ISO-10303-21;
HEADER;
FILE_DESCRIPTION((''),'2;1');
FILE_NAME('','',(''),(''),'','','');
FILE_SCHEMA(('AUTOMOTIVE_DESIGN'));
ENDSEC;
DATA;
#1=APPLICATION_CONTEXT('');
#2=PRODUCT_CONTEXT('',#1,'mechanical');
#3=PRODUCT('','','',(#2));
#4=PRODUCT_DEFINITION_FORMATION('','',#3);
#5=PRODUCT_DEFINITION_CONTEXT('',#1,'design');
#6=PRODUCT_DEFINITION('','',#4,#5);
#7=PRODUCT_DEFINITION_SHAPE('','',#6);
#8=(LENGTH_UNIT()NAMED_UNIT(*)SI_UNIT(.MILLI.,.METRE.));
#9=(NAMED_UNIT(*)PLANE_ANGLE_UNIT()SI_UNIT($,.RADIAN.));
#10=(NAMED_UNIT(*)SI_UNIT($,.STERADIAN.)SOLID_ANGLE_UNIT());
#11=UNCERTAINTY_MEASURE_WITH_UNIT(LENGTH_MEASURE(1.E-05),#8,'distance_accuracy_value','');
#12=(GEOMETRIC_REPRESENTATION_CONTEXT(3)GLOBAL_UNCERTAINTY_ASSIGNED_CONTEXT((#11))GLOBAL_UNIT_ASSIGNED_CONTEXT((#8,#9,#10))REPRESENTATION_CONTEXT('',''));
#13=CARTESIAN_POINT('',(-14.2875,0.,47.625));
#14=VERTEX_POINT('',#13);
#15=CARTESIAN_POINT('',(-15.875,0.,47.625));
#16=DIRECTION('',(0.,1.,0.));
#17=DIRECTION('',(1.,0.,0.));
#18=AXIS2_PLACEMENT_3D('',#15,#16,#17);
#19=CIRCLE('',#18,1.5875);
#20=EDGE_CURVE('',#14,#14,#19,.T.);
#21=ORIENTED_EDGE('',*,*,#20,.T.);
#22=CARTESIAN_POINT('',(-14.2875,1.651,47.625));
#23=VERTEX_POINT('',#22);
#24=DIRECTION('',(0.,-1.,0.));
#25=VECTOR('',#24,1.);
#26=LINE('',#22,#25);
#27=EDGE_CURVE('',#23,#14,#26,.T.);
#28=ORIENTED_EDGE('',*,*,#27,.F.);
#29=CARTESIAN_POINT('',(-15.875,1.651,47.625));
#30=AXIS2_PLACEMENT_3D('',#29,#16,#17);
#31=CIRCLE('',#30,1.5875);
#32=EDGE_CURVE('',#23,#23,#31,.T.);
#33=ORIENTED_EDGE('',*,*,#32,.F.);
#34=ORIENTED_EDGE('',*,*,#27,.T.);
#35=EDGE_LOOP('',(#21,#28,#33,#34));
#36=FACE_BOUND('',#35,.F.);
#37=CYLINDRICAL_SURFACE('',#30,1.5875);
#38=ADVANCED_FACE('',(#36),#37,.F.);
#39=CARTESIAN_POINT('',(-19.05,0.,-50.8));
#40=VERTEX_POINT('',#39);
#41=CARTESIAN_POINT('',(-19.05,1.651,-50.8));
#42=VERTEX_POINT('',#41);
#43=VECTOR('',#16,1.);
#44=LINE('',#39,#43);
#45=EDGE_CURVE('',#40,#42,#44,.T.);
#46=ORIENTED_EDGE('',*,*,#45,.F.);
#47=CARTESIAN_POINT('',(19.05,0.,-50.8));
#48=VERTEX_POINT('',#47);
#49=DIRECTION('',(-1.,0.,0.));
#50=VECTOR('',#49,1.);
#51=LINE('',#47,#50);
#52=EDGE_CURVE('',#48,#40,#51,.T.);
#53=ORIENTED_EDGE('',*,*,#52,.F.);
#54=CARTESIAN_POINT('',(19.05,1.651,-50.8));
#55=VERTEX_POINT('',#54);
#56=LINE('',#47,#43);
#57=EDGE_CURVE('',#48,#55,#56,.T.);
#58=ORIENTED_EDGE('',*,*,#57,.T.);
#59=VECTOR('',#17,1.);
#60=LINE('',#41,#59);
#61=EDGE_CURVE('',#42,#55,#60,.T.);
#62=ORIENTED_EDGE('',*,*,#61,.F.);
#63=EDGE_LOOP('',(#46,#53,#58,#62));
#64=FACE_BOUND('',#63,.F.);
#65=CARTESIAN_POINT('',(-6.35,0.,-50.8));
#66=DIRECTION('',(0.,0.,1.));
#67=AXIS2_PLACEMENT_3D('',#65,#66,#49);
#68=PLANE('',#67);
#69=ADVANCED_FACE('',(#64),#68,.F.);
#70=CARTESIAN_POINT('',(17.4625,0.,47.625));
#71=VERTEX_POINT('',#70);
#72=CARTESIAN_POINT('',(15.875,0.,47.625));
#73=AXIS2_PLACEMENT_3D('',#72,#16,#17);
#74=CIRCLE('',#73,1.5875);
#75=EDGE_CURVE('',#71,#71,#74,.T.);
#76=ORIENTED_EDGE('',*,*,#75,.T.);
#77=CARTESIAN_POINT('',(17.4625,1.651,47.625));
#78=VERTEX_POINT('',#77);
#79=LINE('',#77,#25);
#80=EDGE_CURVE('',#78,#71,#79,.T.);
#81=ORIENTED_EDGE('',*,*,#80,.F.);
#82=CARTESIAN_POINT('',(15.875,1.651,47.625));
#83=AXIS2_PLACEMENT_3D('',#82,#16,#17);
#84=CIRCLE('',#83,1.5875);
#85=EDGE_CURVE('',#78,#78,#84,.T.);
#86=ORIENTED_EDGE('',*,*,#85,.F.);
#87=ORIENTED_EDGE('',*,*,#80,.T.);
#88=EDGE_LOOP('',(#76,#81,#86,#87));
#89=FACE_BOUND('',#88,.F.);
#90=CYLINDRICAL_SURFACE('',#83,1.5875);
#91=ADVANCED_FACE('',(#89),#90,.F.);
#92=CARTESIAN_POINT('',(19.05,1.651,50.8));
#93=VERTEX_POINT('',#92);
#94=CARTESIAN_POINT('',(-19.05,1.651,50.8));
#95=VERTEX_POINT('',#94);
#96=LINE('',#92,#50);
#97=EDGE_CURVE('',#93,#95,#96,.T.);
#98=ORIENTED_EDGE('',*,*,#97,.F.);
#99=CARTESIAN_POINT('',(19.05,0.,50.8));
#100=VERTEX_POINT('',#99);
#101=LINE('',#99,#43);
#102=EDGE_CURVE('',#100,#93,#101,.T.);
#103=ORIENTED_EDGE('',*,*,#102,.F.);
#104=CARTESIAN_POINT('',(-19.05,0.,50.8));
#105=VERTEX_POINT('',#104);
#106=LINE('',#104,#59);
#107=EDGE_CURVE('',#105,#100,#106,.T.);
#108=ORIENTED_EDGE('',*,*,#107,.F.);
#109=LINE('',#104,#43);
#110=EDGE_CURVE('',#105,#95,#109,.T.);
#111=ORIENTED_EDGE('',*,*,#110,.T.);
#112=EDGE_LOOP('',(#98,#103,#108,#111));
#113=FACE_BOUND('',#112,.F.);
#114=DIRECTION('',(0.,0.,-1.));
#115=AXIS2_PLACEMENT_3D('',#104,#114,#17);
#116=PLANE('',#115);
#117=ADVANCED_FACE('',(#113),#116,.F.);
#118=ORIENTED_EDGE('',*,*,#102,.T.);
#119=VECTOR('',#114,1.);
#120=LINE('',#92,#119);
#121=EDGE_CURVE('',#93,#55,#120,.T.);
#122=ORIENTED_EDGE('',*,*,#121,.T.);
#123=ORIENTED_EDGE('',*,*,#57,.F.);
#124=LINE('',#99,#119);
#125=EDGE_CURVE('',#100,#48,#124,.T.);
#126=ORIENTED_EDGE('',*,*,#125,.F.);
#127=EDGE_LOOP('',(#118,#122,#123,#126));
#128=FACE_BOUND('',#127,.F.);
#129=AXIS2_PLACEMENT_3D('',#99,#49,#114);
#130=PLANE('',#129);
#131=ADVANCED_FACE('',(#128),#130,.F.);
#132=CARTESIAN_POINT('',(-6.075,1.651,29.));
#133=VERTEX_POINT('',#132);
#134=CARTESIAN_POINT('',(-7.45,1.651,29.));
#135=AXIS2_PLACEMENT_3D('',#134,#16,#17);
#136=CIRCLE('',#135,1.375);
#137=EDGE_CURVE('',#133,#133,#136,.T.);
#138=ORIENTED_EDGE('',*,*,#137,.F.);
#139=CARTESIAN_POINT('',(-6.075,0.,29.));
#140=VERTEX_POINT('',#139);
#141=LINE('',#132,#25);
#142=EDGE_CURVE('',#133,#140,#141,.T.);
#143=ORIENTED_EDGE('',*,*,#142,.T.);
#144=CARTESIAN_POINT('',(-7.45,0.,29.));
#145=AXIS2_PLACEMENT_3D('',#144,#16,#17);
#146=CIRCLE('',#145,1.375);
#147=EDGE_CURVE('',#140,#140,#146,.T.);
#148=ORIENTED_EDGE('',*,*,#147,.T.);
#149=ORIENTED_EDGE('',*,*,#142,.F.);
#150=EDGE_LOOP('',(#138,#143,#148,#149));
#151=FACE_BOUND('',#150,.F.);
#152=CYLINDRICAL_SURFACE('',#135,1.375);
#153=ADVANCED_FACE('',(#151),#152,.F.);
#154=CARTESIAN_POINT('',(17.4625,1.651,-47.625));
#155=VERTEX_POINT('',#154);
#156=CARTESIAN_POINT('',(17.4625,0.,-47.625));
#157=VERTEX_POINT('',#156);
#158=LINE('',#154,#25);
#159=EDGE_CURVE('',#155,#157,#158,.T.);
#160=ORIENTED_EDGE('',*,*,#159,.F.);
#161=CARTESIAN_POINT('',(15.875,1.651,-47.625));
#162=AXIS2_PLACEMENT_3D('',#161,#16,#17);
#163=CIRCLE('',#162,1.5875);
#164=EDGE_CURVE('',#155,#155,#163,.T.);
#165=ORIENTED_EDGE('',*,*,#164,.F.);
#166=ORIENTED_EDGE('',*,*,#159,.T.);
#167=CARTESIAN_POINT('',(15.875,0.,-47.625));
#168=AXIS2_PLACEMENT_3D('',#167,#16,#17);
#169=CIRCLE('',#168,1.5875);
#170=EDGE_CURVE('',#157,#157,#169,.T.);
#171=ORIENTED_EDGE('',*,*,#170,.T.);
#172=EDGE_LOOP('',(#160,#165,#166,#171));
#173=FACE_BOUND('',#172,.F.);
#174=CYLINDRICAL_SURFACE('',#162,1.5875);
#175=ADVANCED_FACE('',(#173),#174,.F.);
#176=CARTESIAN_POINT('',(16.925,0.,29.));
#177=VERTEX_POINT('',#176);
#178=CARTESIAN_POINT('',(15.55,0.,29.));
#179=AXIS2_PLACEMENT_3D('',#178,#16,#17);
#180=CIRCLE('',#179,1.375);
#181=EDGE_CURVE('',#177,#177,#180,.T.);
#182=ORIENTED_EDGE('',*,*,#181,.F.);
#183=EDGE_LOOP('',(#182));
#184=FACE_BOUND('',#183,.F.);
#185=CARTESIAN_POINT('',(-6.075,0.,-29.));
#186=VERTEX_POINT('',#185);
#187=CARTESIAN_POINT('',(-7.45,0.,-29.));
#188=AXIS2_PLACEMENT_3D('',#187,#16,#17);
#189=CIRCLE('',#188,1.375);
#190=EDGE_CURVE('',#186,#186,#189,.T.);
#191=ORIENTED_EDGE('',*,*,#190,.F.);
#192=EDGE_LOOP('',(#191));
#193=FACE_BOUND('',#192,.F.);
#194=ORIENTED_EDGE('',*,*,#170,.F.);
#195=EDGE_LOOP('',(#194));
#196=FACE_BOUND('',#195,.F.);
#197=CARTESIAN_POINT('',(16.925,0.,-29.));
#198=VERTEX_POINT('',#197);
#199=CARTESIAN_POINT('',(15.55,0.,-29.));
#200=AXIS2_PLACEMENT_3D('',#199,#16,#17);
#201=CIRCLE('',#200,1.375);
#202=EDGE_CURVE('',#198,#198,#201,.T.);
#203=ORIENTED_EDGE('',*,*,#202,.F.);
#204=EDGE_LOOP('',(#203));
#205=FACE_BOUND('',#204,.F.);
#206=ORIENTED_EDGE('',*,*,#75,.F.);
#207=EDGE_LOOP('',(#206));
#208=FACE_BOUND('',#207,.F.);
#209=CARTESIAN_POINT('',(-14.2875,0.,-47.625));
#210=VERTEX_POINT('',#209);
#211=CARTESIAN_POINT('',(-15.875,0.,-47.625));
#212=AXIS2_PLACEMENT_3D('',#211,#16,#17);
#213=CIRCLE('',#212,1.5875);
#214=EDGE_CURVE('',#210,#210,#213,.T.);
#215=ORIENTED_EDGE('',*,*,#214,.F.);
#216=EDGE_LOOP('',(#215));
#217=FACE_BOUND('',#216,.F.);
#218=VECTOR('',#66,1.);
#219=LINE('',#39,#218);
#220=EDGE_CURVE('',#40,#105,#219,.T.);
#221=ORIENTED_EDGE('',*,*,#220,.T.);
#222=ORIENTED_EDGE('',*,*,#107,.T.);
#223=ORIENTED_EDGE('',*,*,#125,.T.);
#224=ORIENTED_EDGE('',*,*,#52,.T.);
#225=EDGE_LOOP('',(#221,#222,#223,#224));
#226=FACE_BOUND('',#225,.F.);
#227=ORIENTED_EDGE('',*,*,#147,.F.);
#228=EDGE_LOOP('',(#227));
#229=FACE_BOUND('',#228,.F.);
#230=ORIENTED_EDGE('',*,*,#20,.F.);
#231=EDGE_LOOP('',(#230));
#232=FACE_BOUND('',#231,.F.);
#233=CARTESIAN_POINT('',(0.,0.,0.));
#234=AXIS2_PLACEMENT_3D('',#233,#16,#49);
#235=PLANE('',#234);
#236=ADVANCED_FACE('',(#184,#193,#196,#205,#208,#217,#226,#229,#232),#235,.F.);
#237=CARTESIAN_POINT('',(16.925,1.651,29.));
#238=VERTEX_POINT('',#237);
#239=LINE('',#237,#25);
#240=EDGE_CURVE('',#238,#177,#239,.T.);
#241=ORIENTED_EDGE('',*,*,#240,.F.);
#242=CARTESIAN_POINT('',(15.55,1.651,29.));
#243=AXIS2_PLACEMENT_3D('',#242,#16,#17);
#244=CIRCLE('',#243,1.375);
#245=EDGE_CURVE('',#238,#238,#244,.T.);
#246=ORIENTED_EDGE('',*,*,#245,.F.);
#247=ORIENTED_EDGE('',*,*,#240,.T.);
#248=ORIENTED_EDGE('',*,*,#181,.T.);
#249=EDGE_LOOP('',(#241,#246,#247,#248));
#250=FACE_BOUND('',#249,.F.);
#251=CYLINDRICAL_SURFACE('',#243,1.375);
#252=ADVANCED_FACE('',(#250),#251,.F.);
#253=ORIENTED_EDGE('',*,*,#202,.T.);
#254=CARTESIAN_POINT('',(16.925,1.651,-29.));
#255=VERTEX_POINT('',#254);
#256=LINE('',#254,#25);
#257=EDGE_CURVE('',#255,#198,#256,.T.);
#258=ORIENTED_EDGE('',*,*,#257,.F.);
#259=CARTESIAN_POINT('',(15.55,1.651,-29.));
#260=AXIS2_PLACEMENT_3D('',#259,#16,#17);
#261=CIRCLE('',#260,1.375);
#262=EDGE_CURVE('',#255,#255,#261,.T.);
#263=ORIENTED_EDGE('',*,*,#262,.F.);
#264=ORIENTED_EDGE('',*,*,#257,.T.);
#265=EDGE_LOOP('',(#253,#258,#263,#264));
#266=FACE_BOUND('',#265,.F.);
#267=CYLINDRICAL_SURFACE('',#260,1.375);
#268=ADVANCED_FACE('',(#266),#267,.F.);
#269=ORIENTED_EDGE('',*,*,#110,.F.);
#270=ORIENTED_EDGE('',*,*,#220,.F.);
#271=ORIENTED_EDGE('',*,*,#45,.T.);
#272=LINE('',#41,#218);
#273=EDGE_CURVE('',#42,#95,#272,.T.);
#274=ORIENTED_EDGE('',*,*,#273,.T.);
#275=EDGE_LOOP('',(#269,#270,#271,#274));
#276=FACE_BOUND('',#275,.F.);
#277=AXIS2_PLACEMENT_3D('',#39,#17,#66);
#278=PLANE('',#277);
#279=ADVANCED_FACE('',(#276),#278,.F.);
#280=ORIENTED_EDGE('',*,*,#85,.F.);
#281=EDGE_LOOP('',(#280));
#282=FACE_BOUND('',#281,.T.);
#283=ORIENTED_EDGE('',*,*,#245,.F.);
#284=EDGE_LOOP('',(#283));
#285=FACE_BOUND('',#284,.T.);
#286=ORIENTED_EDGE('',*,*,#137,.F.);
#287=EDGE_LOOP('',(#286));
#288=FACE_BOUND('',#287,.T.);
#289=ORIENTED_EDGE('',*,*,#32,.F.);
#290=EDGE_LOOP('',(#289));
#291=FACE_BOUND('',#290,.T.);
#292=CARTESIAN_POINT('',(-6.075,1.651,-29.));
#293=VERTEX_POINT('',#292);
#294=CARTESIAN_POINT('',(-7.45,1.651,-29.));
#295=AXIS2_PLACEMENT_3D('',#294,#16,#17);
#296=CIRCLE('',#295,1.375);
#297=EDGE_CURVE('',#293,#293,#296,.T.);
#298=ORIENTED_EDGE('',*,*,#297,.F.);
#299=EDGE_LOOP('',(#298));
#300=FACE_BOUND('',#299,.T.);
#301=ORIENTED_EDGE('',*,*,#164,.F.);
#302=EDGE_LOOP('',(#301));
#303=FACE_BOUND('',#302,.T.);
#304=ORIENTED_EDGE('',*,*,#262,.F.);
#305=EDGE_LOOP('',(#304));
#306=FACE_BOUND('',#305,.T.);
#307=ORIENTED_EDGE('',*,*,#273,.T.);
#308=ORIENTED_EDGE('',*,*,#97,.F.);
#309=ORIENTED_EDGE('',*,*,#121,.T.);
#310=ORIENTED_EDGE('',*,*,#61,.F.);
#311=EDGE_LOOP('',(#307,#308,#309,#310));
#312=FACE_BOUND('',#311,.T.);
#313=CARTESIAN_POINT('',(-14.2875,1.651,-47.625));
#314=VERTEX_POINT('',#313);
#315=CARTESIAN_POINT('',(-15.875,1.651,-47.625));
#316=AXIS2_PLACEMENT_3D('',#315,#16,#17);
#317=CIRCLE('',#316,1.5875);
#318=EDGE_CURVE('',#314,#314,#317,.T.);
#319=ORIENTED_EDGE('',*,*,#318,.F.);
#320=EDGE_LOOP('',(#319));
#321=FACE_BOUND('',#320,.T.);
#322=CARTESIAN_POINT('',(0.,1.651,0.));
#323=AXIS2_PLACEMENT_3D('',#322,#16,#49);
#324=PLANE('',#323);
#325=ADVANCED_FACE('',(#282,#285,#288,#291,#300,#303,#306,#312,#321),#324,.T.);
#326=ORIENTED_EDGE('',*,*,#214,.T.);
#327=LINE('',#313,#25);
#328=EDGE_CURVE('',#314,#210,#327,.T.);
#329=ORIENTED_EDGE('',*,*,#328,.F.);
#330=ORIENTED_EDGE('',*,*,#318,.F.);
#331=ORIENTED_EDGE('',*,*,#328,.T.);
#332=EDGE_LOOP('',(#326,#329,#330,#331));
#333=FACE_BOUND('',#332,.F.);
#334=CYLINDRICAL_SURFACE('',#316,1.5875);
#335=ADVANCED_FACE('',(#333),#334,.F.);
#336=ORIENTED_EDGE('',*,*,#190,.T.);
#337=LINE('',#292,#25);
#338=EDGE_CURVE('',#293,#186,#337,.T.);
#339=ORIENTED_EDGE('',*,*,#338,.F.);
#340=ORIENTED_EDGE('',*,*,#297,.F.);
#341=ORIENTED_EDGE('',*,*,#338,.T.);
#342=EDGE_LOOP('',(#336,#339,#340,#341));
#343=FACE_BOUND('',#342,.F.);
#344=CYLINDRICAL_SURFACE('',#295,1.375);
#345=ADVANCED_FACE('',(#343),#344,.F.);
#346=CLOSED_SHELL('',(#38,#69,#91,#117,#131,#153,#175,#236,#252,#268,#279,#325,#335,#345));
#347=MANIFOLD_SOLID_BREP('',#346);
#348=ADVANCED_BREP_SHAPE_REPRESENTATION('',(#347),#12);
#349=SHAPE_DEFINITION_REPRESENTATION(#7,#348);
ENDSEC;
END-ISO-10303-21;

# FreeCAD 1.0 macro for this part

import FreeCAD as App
import Part
import Sketcher
Q = App.Units.Quantity


def add_polygon(sketch, points):
    """Adds a closed chain of lines whose ends are joined by coincident constraints."""
    first, n = sketch.GeometryCount, len(points)
    for a, b in zip(points, points[1:] + points[:1]):
        sketch.addGeometry(Part.LineSegment(App.Vector(*a, 0), App.Vector(*b, 0)), False)
    for i in range(n):
        sketch.addConstraint(Sketcher.Constraint("Coincident", first + i, 2, first + (i + 1) % n, 1))

doc = App.newDocument("Part")
body = doc.addObject("PartDesign::Body", "Body")

# Sketch on XZ plane
sketch1 = body.newObject("Sketcher::SketchObject", "Sketch")
sketch1.AttachmentSupport = (doc.getObject("XZ_Plane"), [""])
sketch1.MapMode = "FlatFace"
add_polygon(sketch1, [(-19, -51), (-19, 51), (19, 51), (19, -51)])  # lines 0-3
sketch1.addConstraint([
    Sketcher.Constraint("Vertical", 0),
    Sketcher.Constraint("Horizontal", 1),
    Sketcher.Constraint("Vertical", 2),
    Sketcher.Constraint("Horizontal", 3),
    Sketcher.Constraint("Symmetric", 0, 2, 2, 2, -1, 1),
    Sketcher.Constraint("DistanceY", 0, 1, 0, 2, Q("4 in")),
    Sketcher.Constraint("DistanceX", 1, 1, 1, 2, Q("1.5 in")),
])
pad1 = body.newObject("PartDesign::Pad", "Pad")
pad1.Profile = sketch1
pad1.Length = Q("0.065 in")
pad1.Reversed = True

# Sketch on XZ plane
sketch2 = body.newObject("Sketcher::SketchObject", "Sketch001")
sketch2.AttachmentSupport = (doc.getObject("XZ_Plane"), [""])
sketch2.MapMode = "FlatFace"
sketch2.AttachmentOffset = App.Placement(App.Vector(0, 0, -0.065 * 25.4), App.Rotation())
sketch2.addGeometry([
    Part.Circle(App.Vector(-15.9, 47.6, 0), App.Vector(0, 0, 1), 1.6),
    Part.Circle(App.Vector(15.9, 47.6, 0), App.Vector(0, 0, 1), 1.6),
    Part.Circle(App.Vector(-15.9, -47.6, 0), App.Vector(0, 0, 1), 1.6),
    Part.Circle(App.Vector(15.9, -47.6, 0), App.Vector(0, 0, 1), 1.6),
], False)
sketch2.addConstraint([
    Sketcher.Constraint("Equal", 0, 1),
    Sketcher.Constraint("Equal", 1, 2),
    Sketcher.Constraint("Equal", 2, 3),
    Sketcher.Constraint("Symmetric", 1, 3, 2, 3, -1, 1),
    Sketcher.Constraint("Symmetric", 0, 3, 3, 3, -1, 1),
    Sketcher.Constraint("Symmetric", 0, 3, 1, 3, -2),
    Sketcher.Constraint("Diameter", 0, Q("0.125 in")),
    Sketcher.Constraint("DistanceX", 0, 3, 1, 3, Q("1.25 in")),
    Sketcher.Constraint("DistanceY", 2, 3, 0, 3, Q("3.75 in")),
])
pocket1 = body.newObject("PartDesign::Pocket", "Pocket")
pocket1.Profile = sketch2
pocket1.Type = "ThroughAll"
pocket1.Reversed = True

# Sketch on XZ plane
sketch3 = body.newObject("Sketcher::SketchObject", "Sketch002")
sketch3.AttachmentSupport = (doc.getObject("XZ_Plane"), [""])
sketch3.MapMode = "FlatFace"
sketch3.AttachmentOffset = App.Placement(App.Vector(0, 0, -0.065 * 25.4), App.Rotation())
sketch3.addGeometry([
    Part.Circle(App.Vector(-7.5, -29, 0), App.Vector(0, 0, 1), 1.4),
    Part.Circle(App.Vector(15.6, -29, 0), App.Vector(0, 0, 1), 1.4),
    Part.Circle(App.Vector(-7.5, 29, 0), App.Vector(0, 0, 1), 1.4),
    Part.Circle(App.Vector(15.6, 29, 0), App.Vector(0, 0, 1), 1.4),
], False)
sketch3.addConstraint([
    Sketcher.Constraint("Equal", 0, 1),
    Sketcher.Constraint("Equal", 1, 2),
    Sketcher.Constraint("Equal", 2, 3),
    Sketcher.Constraint("Symmetric", 0, 3, 2, 3, -1),
    Sketcher.Constraint("Symmetric", 1, 3, 3, 3, -1),
    Sketcher.Constraint("Horizontal", 0, 3, 1, 3),
    Sketcher.Constraint("Diameter", 0, Q("2.75 mm")),
    Sketcher.Constraint("DistanceX", 0, 3, 1, 3, Q("0.9055 in")),
    Sketcher.Constraint("DistanceY", 0, 3, -1, 1, Q("29 mm")),
    Sketcher.Constraint("DistanceX", 0, 3, -1, 1, Q("0.2933 in")),
])
pocket2 = body.newObject("PartDesign::Pocket", "Pocket001")
pocket2.Profile = sketch3
pocket2.Type = "ThroughAll"
pocket2.Reversed = True

doc.recompute()
